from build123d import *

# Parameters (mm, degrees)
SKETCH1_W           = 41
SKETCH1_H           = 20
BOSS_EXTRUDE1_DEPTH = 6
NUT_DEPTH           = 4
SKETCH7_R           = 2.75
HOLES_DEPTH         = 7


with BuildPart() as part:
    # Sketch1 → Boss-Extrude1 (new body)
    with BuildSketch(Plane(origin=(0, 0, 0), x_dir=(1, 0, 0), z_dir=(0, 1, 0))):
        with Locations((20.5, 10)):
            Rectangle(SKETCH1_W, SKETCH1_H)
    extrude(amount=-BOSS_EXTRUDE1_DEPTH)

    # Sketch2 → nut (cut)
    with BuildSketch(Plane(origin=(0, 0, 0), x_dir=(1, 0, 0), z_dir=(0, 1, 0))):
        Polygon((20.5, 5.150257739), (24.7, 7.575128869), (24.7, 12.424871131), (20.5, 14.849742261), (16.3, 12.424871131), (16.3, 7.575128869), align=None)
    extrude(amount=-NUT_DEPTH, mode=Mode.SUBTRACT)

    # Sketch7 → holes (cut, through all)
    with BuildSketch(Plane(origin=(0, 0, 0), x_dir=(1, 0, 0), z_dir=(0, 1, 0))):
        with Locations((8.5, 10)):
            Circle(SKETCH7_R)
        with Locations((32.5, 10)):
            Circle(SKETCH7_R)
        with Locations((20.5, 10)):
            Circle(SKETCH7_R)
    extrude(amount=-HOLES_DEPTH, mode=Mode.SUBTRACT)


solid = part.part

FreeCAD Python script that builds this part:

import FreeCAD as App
import Part
import Sketcher
from FreeCAD import Vector
Q = App.Units.Quantity


def add_polygon(sketch, points):
    """Adds a closed chain of lines whose ends are joined by coincident constraints."""
    first, n = sketch.GeometryCount, len(points)
    for a, b in zip(points, points[1:] + points[:1]):
        sketch.addGeometry(Part.LineSegment(App.Vector(*a, 0), App.Vector(*b, 0)), False)
    for i in range(n):
        sketch.addConstraint(Sketcher.Constraint("Coincident", first + i, 2, first + (i + 1) % n, 1))

doc = App.newDocument("Part")
body = doc.addObject("PartDesign::Body", "Body")

# Sketch on XZ plane
sketch1 = body.newObject("Sketcher::SketchObject", "Sketch")
sketch1.AttachmentSupport = (doc.getObject("XZ_Plane"), [""])
sketch1.MapMode = "FlatFace"
add_polygon(sketch1, [(0, -20), (0, 0), (41, 0), (41, -20)])  # lines 0-3
sketch1.addConstraint([
    Sketcher.Constraint("Vertical", 0),
    Sketcher.Constraint("Horizontal", 1),
    Sketcher.Constraint("Vertical", 2),
    Sketcher.Constraint("Horizontal", 3),
    Sketcher.Constraint("Coincident", 0, 2, -1, 1),
    Sketcher.Constraint("DistanceX", 1, 1, 1, 2, Q("41 mm")),
    Sketcher.Constraint("DistanceY", 0, 1, 0, 2, Q("20 mm")),
])
pad1 = body.newObject("PartDesign::Pad", "Pad")
pad1.Profile = sketch1
pad1.Length = 6

# Sketch on XZ plane
sketch2 = body.newObject("Sketcher::SketchObject", "Sketch001")
sketch2.AttachmentSupport = (doc.getObject("XZ_Plane"), [""])
sketch2.MapMode = "FlatFace"
add_polygon(sketch2, [(20.5, -5.2), (24.7, -7.6), (24.7, -12.4), (20.5, -14.8), (16.3, -12.4), (16.3, -7.6)])  # lines 0-5
sketch2.addConstraint([
    Sketcher.Constraint("Vertical", 1),
    Sketcher.Constraint("Vertical", 4),
    Sketcher.Constraint("Parallel", 0, 3),
    Sketcher.Constraint("Parallel", 2, 5),
    Sketcher.Constraint("Horizontal", 1, 2, 3, 2),
    Sketcher.Constraint("Horizontal", 0, 2, 4, 2),
    Sketcher.Constraint("Vertical", 2, 2, 5, 2),
    Sketcher.Constraint("Angle", 0, Q("-30 deg")),
    Sketcher.Constraint("DistanceX", -1, 1, 0, 2, Q("24.7 mm")),
    Sketcher.Constraint("DistanceX", -1, 1, 2, 2, Q("20.5 mm")),
    Sketcher.Constraint("DistanceY", 1, 2, 1, 1, Q("4.849742 mm")),
    Sketcher.Constraint("DistanceY", 0, 2, -1, 1, Q("7.575129 mm")),
])
pocket1 = body.newObject("PartDesign::Pocket", "Pocket")
pocket1.Profile = sketch2
pocket1.Length = 4
pocket1.Reversed = True

# Sketch on XZ plane
sketch3 = body.newObject("Sketcher::SketchObject", "Sketch002")
sketch3.AttachmentSupport = (doc.getObject("XZ_Plane"), [""])
sketch3.MapMode = "FlatFace"
sketch3.addGeometry([
    Part.Circle(Vector(8.5, -10, 0), Vector(0, 0, 1), 2.8),
    Part.Circle(Vector(32.5, -10, 0), Vector(0, 0, 1), 2.8),
    Part.Circle(Vector(20.5, -10, 0), Vector(0, 0, 1), 2.8),
], False)
sketch3.addConstraint([
    Sketcher.Constraint("Equal", 0, 1),
    Sketcher.Constraint("Equal", 1, 2),
    Sketcher.Constraint("Horizontal", 0, 3, 1, 3),
    Sketcher.Constraint("Horizontal", 1, 3, 2, 3),
    Sketcher.Constraint("Diameter", 0, Q("5.5 mm")),
    Sketcher.Constraint("DistanceY", 0, 3, -1, 1, Q("10 mm")),
    Sketcher.Constraint("DistanceX", 0, 3, 1, 3, Q("24 mm")),
    Sketcher.Constraint("DistanceX", 0, 3, 2, 3, Q("12 mm")),
    Sketcher.Constraint("DistanceX", -1, 1, 0, 3, Q("8.5 mm")),
])
pocket2 = body.newObject("PartDesign::Pocket", "Pocket001")
pocket2.Profile = sketch3
pocket2.Type = "ThroughAll"
pocket2.Reversed = True

doc.recompute()
